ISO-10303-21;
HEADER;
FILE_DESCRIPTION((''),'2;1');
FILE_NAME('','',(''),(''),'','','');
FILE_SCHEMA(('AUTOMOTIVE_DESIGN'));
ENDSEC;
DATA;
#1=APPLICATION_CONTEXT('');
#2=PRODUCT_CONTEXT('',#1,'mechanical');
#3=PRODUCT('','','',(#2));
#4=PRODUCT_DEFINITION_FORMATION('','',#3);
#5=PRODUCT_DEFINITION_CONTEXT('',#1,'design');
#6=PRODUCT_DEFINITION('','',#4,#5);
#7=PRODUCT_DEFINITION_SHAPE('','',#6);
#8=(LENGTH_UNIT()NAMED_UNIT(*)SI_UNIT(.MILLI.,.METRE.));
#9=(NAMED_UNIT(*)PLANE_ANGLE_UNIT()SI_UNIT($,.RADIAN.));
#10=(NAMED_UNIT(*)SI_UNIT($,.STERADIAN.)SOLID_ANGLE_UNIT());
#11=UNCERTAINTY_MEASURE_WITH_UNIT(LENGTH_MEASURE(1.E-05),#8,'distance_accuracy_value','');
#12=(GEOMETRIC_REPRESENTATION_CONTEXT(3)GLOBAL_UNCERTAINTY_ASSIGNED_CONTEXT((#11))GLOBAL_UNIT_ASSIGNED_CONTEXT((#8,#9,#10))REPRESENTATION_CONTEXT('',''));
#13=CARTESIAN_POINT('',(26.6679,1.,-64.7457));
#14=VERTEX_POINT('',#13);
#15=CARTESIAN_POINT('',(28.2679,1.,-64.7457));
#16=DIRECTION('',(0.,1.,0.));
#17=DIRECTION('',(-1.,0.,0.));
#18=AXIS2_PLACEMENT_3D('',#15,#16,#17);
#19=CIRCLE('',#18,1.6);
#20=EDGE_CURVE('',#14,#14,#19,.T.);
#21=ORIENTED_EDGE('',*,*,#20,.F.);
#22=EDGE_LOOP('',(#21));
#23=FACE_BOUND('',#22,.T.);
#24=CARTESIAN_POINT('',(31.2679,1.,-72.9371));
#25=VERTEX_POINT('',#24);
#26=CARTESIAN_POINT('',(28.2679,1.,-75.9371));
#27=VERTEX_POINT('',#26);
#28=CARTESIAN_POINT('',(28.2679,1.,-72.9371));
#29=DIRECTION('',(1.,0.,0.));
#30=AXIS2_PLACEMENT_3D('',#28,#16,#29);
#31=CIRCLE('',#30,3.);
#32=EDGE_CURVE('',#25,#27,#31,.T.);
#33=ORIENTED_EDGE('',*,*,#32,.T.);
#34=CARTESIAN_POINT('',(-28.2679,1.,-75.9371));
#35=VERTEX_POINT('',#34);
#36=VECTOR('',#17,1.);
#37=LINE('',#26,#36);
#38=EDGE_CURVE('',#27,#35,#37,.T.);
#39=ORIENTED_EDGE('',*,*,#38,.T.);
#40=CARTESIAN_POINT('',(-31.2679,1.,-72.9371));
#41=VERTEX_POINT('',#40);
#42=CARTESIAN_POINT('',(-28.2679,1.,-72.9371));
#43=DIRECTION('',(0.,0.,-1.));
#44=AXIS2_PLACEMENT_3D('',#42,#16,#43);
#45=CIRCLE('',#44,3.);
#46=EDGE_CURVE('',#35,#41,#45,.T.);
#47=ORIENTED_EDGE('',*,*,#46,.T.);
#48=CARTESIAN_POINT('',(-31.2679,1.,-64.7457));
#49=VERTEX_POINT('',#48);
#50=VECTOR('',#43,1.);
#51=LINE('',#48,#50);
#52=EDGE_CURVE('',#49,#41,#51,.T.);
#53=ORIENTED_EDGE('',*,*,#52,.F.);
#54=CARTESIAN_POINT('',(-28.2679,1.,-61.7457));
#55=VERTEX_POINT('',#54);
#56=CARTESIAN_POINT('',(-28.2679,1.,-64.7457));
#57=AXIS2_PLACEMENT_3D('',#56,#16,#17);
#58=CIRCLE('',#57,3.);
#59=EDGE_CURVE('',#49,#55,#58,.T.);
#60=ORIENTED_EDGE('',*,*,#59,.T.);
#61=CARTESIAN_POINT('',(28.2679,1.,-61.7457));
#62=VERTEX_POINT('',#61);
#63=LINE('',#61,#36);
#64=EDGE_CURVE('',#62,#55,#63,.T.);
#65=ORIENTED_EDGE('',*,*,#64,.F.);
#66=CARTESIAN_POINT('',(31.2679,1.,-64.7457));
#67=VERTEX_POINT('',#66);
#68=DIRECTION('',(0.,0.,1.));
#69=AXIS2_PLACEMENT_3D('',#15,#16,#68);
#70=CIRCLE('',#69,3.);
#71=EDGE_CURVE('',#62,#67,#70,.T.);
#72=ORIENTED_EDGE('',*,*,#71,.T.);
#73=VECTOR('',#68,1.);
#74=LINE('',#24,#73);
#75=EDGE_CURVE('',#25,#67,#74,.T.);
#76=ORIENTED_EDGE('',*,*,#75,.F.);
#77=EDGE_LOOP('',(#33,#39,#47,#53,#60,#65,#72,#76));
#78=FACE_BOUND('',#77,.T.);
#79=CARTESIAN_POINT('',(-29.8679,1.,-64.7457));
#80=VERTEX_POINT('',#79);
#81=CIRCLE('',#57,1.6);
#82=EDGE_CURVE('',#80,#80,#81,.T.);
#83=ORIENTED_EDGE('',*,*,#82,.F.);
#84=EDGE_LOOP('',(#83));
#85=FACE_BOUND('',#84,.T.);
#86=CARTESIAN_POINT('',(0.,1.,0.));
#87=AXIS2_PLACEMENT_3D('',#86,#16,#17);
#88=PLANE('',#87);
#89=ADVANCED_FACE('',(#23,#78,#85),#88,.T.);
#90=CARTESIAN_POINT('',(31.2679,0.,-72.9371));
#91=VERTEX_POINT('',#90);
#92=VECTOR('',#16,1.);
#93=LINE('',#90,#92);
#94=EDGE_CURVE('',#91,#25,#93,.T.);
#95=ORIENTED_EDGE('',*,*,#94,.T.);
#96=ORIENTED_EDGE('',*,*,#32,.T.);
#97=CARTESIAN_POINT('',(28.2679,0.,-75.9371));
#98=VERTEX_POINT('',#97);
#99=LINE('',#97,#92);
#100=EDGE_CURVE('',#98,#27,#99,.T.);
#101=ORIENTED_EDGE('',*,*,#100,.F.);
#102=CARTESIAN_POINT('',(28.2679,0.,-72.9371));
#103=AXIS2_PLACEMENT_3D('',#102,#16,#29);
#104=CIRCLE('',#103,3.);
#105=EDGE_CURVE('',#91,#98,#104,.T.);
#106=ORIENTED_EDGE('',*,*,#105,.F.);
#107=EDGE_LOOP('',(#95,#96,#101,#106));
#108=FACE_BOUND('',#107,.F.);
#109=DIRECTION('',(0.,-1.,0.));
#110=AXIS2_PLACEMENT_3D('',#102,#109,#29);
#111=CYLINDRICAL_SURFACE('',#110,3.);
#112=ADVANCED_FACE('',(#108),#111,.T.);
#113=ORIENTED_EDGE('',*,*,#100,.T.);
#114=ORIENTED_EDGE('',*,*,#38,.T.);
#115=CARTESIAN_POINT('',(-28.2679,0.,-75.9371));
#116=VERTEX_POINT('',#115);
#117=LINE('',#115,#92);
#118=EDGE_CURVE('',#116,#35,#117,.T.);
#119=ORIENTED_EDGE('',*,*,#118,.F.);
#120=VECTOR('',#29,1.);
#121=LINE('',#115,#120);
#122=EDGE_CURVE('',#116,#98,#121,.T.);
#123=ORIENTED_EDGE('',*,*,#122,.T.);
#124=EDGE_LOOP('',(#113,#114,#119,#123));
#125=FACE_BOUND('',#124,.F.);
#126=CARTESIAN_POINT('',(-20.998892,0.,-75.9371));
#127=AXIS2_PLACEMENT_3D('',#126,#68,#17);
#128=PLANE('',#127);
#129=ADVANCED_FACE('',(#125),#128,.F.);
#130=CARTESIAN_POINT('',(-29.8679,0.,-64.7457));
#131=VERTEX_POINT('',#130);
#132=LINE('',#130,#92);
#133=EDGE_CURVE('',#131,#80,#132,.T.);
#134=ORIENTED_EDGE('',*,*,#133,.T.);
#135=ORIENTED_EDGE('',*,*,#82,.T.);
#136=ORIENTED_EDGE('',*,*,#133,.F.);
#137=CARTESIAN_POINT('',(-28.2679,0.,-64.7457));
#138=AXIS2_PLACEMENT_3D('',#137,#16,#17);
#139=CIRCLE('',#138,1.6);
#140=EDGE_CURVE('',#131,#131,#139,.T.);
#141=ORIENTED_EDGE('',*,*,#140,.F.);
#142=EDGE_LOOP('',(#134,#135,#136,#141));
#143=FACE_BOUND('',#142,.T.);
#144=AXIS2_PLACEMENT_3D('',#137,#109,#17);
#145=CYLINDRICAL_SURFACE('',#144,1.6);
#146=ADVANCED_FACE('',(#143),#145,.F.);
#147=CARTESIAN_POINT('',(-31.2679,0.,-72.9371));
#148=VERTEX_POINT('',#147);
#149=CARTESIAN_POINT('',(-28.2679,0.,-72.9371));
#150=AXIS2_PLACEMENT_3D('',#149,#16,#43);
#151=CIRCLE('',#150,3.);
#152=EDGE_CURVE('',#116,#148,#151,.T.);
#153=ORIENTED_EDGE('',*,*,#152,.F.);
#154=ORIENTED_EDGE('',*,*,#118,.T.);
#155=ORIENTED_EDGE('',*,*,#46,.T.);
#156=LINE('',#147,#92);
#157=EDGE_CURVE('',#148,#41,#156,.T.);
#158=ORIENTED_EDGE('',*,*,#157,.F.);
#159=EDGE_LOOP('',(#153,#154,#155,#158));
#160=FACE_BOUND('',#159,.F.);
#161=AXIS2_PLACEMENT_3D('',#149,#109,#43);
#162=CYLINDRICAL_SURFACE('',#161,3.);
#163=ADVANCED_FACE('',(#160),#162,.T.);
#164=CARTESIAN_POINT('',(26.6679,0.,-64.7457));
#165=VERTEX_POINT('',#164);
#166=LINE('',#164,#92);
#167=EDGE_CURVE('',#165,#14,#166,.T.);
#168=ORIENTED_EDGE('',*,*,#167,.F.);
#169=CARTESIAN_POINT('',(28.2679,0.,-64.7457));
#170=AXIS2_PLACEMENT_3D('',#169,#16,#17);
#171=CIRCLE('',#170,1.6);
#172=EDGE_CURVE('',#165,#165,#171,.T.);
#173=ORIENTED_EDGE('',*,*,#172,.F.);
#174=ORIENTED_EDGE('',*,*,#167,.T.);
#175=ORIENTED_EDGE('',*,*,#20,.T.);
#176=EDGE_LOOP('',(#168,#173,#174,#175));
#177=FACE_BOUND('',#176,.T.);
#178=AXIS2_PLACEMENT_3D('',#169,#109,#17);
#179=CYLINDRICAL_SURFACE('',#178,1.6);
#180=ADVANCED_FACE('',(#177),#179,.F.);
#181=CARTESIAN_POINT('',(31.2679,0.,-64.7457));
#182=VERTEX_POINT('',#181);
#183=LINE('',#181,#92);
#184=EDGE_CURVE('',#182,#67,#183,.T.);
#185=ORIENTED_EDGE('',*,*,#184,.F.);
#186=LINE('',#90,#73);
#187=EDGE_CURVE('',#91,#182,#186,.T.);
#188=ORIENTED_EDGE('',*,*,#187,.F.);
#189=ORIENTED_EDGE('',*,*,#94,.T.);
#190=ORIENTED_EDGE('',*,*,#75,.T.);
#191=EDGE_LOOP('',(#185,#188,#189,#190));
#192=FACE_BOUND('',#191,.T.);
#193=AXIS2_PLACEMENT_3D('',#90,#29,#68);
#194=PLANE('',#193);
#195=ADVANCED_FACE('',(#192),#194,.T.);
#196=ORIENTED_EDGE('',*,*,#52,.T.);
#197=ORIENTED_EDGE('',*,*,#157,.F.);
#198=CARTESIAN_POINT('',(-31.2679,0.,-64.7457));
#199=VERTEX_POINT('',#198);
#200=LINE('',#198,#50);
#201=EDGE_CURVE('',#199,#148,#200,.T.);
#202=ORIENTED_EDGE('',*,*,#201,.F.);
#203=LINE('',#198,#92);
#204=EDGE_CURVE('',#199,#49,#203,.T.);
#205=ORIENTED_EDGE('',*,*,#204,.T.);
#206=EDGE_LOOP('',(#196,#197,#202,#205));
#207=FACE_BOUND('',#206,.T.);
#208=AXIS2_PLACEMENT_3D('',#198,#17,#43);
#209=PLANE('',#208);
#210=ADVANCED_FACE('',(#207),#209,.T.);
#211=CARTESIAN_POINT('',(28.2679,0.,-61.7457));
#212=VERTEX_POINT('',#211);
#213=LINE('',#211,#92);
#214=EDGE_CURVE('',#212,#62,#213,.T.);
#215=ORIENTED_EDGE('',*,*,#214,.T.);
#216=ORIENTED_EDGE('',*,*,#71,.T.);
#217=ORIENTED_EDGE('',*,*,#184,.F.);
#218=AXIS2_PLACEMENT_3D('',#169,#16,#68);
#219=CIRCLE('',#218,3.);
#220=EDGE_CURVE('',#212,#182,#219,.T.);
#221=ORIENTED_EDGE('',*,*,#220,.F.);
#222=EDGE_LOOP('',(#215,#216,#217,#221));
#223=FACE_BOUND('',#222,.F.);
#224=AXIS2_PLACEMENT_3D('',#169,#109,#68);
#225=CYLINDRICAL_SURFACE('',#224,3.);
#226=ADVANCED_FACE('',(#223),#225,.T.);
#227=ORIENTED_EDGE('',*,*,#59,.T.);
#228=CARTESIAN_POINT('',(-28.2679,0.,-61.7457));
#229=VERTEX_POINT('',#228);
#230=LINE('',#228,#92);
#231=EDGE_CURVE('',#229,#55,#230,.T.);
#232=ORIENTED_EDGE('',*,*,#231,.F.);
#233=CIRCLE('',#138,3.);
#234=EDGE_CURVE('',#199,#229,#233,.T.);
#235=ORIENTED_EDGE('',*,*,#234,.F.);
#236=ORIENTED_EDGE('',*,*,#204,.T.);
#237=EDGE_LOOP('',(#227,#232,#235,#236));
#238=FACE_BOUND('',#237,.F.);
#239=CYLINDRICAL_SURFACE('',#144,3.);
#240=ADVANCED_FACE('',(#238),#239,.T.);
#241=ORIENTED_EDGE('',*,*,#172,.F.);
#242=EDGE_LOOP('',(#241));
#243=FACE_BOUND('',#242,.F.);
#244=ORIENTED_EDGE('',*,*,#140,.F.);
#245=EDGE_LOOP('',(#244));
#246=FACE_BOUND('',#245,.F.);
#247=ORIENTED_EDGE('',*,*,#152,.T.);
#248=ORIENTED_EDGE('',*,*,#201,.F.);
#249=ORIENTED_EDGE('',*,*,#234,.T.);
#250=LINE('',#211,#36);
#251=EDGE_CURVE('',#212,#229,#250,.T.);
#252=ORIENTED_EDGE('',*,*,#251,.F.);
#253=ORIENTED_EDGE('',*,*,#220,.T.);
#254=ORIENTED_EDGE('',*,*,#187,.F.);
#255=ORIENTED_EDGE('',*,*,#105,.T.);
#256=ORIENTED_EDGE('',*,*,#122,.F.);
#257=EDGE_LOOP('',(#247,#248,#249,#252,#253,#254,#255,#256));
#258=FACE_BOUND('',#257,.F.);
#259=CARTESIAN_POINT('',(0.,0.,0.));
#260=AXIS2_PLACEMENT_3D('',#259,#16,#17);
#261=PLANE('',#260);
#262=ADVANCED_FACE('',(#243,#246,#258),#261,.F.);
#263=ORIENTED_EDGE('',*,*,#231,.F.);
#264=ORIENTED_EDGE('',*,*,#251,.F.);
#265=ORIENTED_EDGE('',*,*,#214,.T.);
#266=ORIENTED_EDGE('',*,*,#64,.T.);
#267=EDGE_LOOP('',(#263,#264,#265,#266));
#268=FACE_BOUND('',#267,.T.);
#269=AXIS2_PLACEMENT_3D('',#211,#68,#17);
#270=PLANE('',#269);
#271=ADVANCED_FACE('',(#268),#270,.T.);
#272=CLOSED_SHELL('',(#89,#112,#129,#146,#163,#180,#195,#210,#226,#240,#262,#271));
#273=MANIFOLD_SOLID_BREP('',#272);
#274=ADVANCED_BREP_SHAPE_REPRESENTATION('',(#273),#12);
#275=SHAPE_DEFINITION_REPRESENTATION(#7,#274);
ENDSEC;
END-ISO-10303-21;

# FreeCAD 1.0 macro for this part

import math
import FreeCAD as App
import Part
import Sketcher

V = App.Vector
Q = App.Units.Quantity

doc = App.newDocument("Part")
params = doc.addObject("Spreadsheet::Sheet", "Params")
for row, (alias, value) in enumerate([
    ("sketch1_radius", "3 mm"),
    ("sketch1_diameter", "3.2 mm"),
    ("pad1_length", "1 mm"),
], start=1):
    params.set(f"A{row}", alias)
    params.set(f"B{row}", "=" + value)
    params.setAlias(f"B{row}", alias)

body = doc.addObject("PartDesign::Body", "Body")

sketch1 = body.newObject("Sketcher::SketchObject", "Sketch")
sketch1.AttachmentSupport = (doc.getObject("XZ_Plane"), [""])
sketch1.MapMode = "FlatFace"
sketch1.addGeometry([
    Part.LineSegment(V(-31.3, -72.9, 0), V(-31.3, -64.7, 0)),
    Part.ArcOfCircle(Part.Circle(V(-28.3, -64.7, 0), V(0, 0, 1), 3), math.radians(90), math.radians(180)),
    Part.LineSegment(V(-28.3, -61.7, 0), V(28.3, -61.7, 0)),
    Part.ArcOfCircle(Part.Circle(V(28.3, -64.7, 0), V(0, 0, 1), 3), math.radians(0), math.radians(90)),
    Part.LineSegment(V(31.3, -64.7, 0), V(31.3, -72.9, 0)),
    Part.ArcOfCircle(Part.Circle(V(28.3, -72.9, 0), V(0, 0, 1), 3), math.radians(-90), math.radians(0)),
    Part.LineSegment(V(28.3, -75.9, 0), V(-28.3, -75.9, 0)),
    Part.ArcOfCircle(Part.Circle(V(-28.3, -72.9, 0), V(0, 0, 1), 3), math.radians(180), math.radians(270)),
    Part.Circle(V(28.3, -64.7, 0), V(0, 0, 1), 1.6),
    Part.Circle(V(-28.3, -64.7, 0), V(0, 0, 1), 1.6),
], False)
sketch1.addConstraint([
    Sketcher.Constraint("Tangent", 0, 2, 1, 2),
    Sketcher.Constraint("Tangent", 1, 1, 2, 1),
    Sketcher.Constraint("Tangent", 2, 2, 3, 2),
    Sketcher.Constraint("Tangent", 3, 1, 4, 1),
    Sketcher.Constraint("Tangent", 4, 2, 5, 2),
    Sketcher.Constraint("Tangent", 5, 1, 6, 1),
    Sketcher.Constraint("Tangent", 6, 2, 7, 2),
    Sketcher.Constraint("Tangent", 7, 1, 0, 1),
    Sketcher.Constraint("Vertical", 0),
    Sketcher.Constraint("Horizontal", 2),
    Sketcher.Constraint("Vertical", 4),
    Sketcher.Constraint("Horizontal", 6),
    Sketcher.Constraint("Coincident", 8, 3, 3, 3),
    Sketcher.Constraint("Coincident", 9, 3, 1, 3),
    Sketcher.Constraint("Equal", 1, 3),
    Sketcher.Constraint("Equal", 3, 5),
    Sketcher.Constraint("Equal", 5, 7),
    Sketcher.Constraint("Equal", 8, 9),
    Sketcher.Constraint("Radius", 1, Q("3 mm")),
    Sketcher.Constraint("Diameter", 8, Q("3.2 mm")),
    Sketcher.Constraint("DistanceY", 6, 2, 1, 1, Q("14.1914 mm")),
    Sketcher.Constraint("DistanceX", 2, 1, 2, 2, Q("56.5358 mm")),
    Sketcher.Constraint("DistanceX", 1, 3, -1, 1, Q("28.268 mm")),
    Sketcher.Constraint("DistanceY", 5, 3, -1, 1, Q("72.937 mm")),
])
sketch1.setExpression("Constraints[18]", "Params.sketch1_radius")
sketch1.setExpression("Constraints[19]", "Params.sketch1_diameter")
pad1 = body.newObject("PartDesign::Pad", "Pad")
pad1.Profile = sketch1
pad1.setExpression("Length", "Params.pad1_length")
pad1.Reversed = True

doc.recompute()
